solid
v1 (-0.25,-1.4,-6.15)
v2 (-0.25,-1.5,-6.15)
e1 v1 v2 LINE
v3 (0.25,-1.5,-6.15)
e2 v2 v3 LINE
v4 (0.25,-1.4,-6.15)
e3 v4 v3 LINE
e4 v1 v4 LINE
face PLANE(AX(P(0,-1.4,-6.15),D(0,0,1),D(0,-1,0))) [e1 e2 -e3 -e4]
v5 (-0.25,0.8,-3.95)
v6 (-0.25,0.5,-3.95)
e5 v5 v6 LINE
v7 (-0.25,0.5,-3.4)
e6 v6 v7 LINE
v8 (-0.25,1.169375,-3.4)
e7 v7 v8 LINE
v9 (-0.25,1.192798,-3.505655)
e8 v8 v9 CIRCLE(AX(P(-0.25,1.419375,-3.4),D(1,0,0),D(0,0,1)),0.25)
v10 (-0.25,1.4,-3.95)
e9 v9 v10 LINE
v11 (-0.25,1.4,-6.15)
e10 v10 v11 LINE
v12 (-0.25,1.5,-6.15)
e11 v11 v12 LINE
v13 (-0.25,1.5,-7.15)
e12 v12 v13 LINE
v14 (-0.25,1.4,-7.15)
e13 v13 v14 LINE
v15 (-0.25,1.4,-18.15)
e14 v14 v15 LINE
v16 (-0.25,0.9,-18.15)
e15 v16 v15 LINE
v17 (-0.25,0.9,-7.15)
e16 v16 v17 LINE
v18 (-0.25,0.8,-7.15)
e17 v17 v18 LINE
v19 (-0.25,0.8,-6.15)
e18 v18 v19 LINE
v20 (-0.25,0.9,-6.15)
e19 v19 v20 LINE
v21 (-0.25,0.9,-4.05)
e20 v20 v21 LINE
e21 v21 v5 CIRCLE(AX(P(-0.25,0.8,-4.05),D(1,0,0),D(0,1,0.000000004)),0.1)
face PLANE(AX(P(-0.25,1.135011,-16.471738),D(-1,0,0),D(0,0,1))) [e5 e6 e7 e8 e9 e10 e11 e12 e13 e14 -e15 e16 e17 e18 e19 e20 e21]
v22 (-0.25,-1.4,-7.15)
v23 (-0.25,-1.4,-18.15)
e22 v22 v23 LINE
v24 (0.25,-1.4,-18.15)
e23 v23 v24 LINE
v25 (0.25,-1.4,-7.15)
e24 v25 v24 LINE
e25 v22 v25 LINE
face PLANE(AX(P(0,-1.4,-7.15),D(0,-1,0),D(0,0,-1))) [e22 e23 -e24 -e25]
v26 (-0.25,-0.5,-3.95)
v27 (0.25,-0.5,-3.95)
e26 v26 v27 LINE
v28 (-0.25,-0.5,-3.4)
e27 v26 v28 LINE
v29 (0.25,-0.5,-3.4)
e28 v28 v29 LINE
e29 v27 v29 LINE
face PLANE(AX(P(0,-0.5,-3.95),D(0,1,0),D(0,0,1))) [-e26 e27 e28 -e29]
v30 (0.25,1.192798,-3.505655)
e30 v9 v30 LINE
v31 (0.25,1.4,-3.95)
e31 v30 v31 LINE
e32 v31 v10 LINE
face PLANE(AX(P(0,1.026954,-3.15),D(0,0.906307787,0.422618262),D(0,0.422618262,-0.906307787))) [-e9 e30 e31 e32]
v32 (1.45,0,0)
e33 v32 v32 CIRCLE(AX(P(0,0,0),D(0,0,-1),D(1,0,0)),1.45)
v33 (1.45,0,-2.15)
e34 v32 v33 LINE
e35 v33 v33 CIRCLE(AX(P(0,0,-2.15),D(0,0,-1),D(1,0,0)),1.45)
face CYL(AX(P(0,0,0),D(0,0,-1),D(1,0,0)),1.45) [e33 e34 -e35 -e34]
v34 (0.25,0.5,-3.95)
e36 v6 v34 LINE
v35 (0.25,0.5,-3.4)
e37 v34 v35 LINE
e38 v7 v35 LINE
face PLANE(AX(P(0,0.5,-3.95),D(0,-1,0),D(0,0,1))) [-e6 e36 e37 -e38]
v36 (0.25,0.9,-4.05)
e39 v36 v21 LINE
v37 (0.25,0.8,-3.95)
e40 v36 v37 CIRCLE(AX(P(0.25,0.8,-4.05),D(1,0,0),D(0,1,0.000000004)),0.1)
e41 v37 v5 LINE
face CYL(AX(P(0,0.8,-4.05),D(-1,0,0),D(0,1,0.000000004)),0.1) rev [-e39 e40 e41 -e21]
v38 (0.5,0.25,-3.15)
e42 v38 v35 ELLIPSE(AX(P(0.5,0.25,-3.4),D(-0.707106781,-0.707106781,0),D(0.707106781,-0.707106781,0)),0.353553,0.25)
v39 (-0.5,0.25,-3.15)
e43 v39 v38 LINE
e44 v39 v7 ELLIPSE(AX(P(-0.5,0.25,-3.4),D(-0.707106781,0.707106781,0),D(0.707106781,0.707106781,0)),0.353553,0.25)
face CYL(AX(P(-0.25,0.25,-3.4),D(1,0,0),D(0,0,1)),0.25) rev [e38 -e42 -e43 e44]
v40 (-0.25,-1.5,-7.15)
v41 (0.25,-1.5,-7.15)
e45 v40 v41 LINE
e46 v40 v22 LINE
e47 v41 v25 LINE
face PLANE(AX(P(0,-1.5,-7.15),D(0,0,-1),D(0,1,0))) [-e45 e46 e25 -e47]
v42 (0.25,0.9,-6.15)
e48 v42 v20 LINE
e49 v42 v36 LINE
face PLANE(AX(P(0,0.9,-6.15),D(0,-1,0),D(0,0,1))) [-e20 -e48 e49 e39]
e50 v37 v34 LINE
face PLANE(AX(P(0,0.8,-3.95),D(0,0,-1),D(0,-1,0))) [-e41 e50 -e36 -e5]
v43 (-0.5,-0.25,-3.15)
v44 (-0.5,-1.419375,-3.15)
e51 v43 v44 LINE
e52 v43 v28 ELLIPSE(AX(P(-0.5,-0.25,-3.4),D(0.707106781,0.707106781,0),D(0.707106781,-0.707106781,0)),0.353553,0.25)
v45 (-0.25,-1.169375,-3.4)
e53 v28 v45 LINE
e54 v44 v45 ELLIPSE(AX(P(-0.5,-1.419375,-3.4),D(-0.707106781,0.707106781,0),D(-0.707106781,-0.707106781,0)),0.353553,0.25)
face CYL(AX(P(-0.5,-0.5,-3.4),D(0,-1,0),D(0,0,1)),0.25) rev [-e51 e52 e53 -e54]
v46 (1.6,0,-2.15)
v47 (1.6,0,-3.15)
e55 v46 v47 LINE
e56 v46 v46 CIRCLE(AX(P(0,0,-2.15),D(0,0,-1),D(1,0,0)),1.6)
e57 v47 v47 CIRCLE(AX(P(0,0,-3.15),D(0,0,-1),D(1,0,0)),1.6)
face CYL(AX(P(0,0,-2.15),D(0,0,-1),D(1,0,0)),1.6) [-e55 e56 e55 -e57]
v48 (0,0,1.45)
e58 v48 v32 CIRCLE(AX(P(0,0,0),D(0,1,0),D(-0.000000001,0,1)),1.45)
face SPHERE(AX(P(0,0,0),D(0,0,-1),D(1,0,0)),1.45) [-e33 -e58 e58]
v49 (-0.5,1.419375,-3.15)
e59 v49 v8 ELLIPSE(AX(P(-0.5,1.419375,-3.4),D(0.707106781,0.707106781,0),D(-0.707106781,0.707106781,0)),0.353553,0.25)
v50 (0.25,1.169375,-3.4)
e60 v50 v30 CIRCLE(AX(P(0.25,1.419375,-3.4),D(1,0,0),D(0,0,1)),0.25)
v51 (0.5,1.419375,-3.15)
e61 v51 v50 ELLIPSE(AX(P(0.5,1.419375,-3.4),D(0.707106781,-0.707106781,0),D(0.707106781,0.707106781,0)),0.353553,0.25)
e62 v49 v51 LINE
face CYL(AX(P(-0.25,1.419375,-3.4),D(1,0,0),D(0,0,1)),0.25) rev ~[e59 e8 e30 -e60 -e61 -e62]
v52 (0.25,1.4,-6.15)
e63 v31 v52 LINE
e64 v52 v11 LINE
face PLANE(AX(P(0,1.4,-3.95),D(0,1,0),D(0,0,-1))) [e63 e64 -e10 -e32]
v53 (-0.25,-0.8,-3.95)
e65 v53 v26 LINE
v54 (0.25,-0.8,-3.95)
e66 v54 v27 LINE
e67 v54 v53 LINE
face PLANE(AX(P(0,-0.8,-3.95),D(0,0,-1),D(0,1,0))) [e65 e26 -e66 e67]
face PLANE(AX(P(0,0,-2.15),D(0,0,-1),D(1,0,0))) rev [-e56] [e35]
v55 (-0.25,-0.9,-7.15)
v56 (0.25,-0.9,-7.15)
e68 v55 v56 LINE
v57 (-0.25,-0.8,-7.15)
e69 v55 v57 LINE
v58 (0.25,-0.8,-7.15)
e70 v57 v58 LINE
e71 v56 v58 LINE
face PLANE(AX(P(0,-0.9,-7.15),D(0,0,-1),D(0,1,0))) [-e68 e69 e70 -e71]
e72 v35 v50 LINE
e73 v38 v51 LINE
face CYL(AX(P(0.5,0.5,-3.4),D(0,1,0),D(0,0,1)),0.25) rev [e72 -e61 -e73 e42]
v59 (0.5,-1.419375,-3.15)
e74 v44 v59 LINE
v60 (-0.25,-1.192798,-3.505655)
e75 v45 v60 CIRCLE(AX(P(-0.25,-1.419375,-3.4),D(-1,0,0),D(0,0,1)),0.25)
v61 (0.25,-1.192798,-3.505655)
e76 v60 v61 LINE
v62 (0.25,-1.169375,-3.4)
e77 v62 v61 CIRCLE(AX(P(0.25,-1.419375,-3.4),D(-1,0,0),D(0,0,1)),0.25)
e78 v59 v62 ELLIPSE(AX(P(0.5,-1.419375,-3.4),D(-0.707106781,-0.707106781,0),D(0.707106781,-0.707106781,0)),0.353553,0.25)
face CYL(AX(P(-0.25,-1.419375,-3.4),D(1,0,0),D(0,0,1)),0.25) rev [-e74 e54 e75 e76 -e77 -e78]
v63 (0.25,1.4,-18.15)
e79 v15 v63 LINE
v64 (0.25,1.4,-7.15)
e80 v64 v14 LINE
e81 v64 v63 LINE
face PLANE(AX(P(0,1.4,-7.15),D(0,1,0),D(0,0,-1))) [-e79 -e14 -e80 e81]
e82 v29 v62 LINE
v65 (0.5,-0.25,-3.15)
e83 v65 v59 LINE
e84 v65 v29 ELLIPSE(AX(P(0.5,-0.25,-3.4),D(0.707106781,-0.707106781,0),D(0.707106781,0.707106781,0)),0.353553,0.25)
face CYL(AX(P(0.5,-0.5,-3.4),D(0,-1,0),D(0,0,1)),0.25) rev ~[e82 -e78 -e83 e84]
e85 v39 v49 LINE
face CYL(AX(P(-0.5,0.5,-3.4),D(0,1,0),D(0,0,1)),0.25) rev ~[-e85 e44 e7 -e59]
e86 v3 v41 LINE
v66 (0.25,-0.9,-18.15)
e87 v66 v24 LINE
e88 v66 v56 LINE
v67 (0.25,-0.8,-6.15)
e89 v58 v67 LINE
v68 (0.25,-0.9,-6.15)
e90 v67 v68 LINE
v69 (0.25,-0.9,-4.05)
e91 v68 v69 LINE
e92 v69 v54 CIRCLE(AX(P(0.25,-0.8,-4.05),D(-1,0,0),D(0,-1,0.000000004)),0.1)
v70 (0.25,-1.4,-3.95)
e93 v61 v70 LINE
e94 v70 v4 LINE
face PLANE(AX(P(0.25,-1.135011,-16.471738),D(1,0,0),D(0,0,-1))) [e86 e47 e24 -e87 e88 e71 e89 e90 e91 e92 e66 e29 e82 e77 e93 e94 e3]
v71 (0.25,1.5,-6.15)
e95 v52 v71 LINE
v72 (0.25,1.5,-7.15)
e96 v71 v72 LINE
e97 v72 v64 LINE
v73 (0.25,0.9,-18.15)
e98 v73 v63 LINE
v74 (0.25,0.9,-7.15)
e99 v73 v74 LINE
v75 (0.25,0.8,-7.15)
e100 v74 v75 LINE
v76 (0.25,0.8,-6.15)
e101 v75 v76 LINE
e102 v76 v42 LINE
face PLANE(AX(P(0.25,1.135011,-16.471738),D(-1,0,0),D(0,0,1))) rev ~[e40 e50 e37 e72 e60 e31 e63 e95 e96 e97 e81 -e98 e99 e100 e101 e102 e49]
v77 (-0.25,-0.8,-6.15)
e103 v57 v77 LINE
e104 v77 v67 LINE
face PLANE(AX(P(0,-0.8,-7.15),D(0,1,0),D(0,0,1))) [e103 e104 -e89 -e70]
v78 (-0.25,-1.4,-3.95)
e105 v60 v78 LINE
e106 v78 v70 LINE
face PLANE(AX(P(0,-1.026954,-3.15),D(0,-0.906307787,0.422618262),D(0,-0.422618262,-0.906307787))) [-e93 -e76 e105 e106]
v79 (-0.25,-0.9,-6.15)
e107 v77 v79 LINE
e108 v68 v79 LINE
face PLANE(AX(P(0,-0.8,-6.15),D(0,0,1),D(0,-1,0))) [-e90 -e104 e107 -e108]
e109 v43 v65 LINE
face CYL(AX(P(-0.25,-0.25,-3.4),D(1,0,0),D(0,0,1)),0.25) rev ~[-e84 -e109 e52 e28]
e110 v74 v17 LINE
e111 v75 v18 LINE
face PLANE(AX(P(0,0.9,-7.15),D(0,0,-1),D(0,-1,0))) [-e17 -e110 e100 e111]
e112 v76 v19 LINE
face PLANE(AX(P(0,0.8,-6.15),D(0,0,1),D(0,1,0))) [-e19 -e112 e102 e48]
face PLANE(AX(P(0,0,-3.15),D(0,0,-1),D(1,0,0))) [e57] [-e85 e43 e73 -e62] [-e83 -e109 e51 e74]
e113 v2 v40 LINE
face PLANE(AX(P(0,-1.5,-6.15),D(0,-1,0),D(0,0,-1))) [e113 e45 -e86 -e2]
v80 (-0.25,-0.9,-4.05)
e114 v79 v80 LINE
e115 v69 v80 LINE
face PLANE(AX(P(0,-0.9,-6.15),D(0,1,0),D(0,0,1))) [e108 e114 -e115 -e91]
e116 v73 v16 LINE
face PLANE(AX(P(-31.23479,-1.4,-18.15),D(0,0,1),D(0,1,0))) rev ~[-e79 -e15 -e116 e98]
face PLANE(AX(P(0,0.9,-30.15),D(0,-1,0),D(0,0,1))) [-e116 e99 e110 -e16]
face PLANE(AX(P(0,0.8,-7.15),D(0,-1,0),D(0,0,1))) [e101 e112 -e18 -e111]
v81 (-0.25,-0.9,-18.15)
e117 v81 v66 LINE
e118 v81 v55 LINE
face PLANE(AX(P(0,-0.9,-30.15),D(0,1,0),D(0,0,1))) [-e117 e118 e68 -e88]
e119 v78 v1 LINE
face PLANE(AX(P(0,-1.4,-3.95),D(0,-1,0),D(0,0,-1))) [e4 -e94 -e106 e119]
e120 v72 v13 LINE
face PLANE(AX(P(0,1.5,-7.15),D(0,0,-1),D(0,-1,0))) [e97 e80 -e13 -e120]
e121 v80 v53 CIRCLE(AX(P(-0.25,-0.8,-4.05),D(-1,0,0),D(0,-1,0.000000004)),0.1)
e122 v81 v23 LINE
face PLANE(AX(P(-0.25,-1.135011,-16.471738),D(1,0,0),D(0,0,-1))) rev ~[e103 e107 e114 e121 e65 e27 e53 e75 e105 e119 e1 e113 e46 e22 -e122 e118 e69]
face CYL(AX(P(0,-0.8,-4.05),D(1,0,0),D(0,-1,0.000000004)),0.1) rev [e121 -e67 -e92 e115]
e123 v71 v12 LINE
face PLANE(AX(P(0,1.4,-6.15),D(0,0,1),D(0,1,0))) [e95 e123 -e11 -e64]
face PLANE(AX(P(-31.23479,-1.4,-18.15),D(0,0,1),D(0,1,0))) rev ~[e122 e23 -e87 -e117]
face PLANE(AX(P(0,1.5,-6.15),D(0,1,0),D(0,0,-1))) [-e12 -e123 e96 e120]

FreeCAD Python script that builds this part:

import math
import FreeCAD as App
import Part
import Sketcher

V = App.Vector
Q = App.Units.Quantity


def edges_at(feature, points):
    """Names of the edges that pass closest to the given points."""
    edges = feature.Shape.Edges
    near = lambda p: min(range(len(edges)), key=lambda i: edges[i].distToShape(Part.Vertex(*p))[0])
    return sorted({f"Edge{near(p) + 1}" for p in points})


def add_polygon(sketch, points):
    """Adds a closed chain of lines whose ends are joined by coincident constraints."""
    first, n = sketch.GeometryCount, len(points)
    for a, b in zip(points, points[1:] + points[:1]):
        sketch.addGeometry(Part.LineSegment(App.Vector(*a, 0), App.Vector(*b, 0)), False)
    for i in range(n):
        sketch.addConstraint(Sketcher.Constraint("Coincident", first + i, 2, first + (i + 1) % n, 1))

doc = App.newDocument("Part")
body = doc.addObject("PartDesign::Body", "Body")

# Sketch on YZ plane
sketch1 = body.newObject("Sketcher::SketchObject", "Sketch")
sketch1.AttachmentSupport = (doc.getObject("YZ_Plane"), [""])
sketch1.MapMode = "FlatFace"
sketch1.addGeometry(Part.LineSegment(V(1.45, -2.15, 0), V(1.45, 0, 0)), False)
sketch1.addGeometry(Part.ArcOfCircle(Part.Circle(V(0, 0, 0), V(0, 0, 1), 1.45), math.radians(0), math.radians(90)), False)
sketch1.addGeometry(Part.LineSegment(V(0, 1.45, 0), V(0, -3.15, 0)), False)
sketch1.addGeometry(Part.LineSegment(V(0, -3.15, 0), V(1.6, -3.15, 0)), False)
sketch1.addGeometry(Part.LineSegment(V(1.6, -3.15, 0), V(1.6, -2.15, 0)), False)
sketch1.addGeometry(Part.LineSegment(V(1.6, -2.15, 0), V(1.45, -2.15, 0)), False)
sketch1.addConstraint(Sketcher.Constraint("Tangent", 0, 2, 1, 1))
sketch1.addConstraint(Sketcher.Constraint("Coincident", 1, 2, 2, 1))
sketch1.addConstraint(Sketcher.Constraint("Coincident", 2, 2, 3, 1))
sketch1.addConstraint(Sketcher.Constraint("Coincident", 3, 2, 4, 1))
sketch1.addConstraint(Sketcher.Constraint("Coincident", 4, 2, 5, 1))
sketch1.addConstraint(Sketcher.Constraint("Coincident", 5, 2, 0, 1))
sketch1.addConstraint(Sketcher.Constraint("Vertical", 0))
sketch1.addConstraint(Sketcher.Constraint("Vertical", 2))
sketch1.addConstraint(Sketcher.Constraint("Horizontal", 3))
sketch1.addConstraint(Sketcher.Constraint("Vertical", 4))
sketch1.addConstraint(Sketcher.Constraint("Horizontal", 5))
sketch1.addConstraint(Sketcher.Constraint("Coincident", 1, 3, -1, 1))
sketch1.addConstraint(Sketcher.Constraint("PointOnObject", 1, 2, -2))
sketch1.addConstraint(Sketcher.Constraint("DistanceY", 4, 1, 4, 2, 1.0))
sketch1.addConstraint(Sketcher.Constraint("Radius", 1, 1.45))
sketch1.addConstraint(Sketcher.Constraint("DistanceX", 3, 1, 3, 2, 1.6))
sketch1.addConstraint(Sketcher.Constraint("DistanceY", 2, 2, 2, 1, 4.6))
revolution = body.newObject("PartDesign::Revolution", "Revolution")
revolution.Profile = sketch1
revolution.ReferenceAxis = (sketch1, ["V_Axis"])
revolution.Angle = 360

# Sketch on YZ plane
sketch2 = body.newObject("Sketcher::SketchObject", "Sketch001")
sketch2.AttachmentSupport = (doc.getObject("YZ_Plane"), [""])
sketch2.MapMode = "FlatFace"
sketch2.addGeometry(Part.LineSegment(V(1.4, -3.95, 0), V(1.03, -3.15, 0)), False)
sketch2.addGeometry(Part.LineSegment(V(1.03, -3.15, 0), V(0.5, -3.15, 0)), False)
sketch2.addGeometry(Part.LineSegment(V(0.5, -3.15, 0), V(0.5, -3.95, 0)), False)
sketch2.addGeometry(Part.LineSegment(V(0.5, -3.95, 0), V(0.8, -3.95, 0)), False)
sketch2.addGeometry(Part.ArcOfCircle(Part.Circle(V(0.8, -4.05, 0), V(0, 0, 1), 0.1), math.radians(0), math.radians(90)), False)
sketch2.addGeometry(Part.LineSegment(V(0.9, -4.05, 0), V(0.9, -6.15, 0)), False)
sketch2.addGeometry(Part.LineSegment(V(0.9, -6.15, 0), V(0.8, -6.15, 0)), False)
sketch2.addGeometry(Part.LineSegment(V(0.8, -6.15, 0), V(0.8, -7.15, 0)), False)
sketch2.addGeometry(Part.LineSegment(V(0.8, -7.15, 0), V(0.9, -7.15, 0)), False)
sketch2.addGeometry(Part.LineSegment(V(0.9, -7.15, 0), V(0.9, -30.15, 0)), False)
sketch2.addGeometry(Part.LineSegment(V(0.9, -30.15, 0), V(1.4, -30.15, 0)), False)
sketch2.addGeometry(Part.LineSegment(V(1.4, -30.15, 0), V(1.4, -7.15, 0)), False)
sketch2.addGeometry(Part.LineSegment(V(1.4, -7.15, 0), V(1.5, -7.15, 0)), False)
sketch2.addGeometry(Part.LineSegment(V(1.5, -7.15, 0), V(1.5, -6.15, 0)), False)
sketch2.addGeometry(Part.LineSegment(V(1.5, -6.15, 0), V(1.4, -6.15, 0)), False)
sketch2.addGeometry(Part.LineSegment(V(1.4, -6.15, 0), V(1.4, -3.95, 0)), False)
sketch2.addGeometry(Part.LineSegment(V(-0.8, -3.95, 0), V(-0.5, -3.95, 0)), False)
sketch2.addGeometry(Part.LineSegment(V(-0.5, -3.95, 0), V(-0.5, -3.15, 0)), False)
sketch2.addGeometry(Part.LineSegment(V(-0.5, -3.15, 0), V(-1.03, -3.15, 0)), False)
sketch2.addGeometry(Part.LineSegment(V(-1.03, -3.15, 0), V(-1.4, -3.95, 0)), False)
sketch2.addGeometry(Part.LineSegment(V(-1.4, -3.95, 0), V(-1.4, -6.15, 0)), False)
sketch2.addGeometry(Part.LineSegment(V(-1.4, -6.15, 0), V(-1.5, -6.15, 0)), False)
sketch2.addGeometry(Part.LineSegment(V(-1.5, -6.15, 0), V(-1.5, -7.15, 0)), False)
sketch2.addGeometry(Part.LineSegment(V(-1.5, -7.15, 0), V(-1.4, -7.15, 0)), False)
sketch2.addGeometry(Part.LineSegment(V(-1.4, -7.15, 0), V(-1.4, -30.15, 0)), False)
sketch2.addGeometry(Part.LineSegment(V(-1.4, -30.15, 0), V(-0.9, -30.15, 0)), False)
sketch2.addGeometry(Part.LineSegment(V(-0.9, -30.15, 0), V(-0.9, -7.15, 0)), False)
sketch2.addGeometry(Part.LineSegment(V(-0.9, -7.15, 0), V(-0.8, -7.15, 0)), False)
sketch2.addGeometry(Part.LineSegment(V(-0.8, -7.15, 0), V(-0.8, -6.15, 0)), False)
sketch2.addGeometry(Part.LineSegment(V(-0.8, -6.15, 0), V(-0.9, -6.15, 0)), False)
sketch2.addGeometry(Part.LineSegment(V(-0.9, -6.15, 0), V(-0.9, -4.05, 0)), False)
sketch2.addGeometry(Part.ArcOfCircle(Part.Circle(V(-0.8, -4.05, 0), V(0, 0, 1), 0.1), math.radians(90), math.radians(180)), False)
sketch2.addConstraint(Sketcher.Constraint("Coincident", 0, 2, 1, 1))
sketch2.addConstraint(Sketcher.Constraint("Coincident", 1, 2, 2, 1))
sketch2.addConstraint(Sketcher.Constraint("Coincident", 2, 2, 3, 1))
sketch2.addConstraint(Sketcher.Constraint("Tangent", 3, 2, 4, 2))
sketch2.addConstraint(Sketcher.Constraint("Tangent", 4, 1, 5, 1))
sketch2.addConstraint(Sketcher.Constraint("Coincident", 5, 2, 6, 1))
sketch2.addConstraint(Sketcher.Constraint("Coincident", 6, 2, 7, 1))
sketch2.addConstraint(Sketcher.Constraint("Coincident", 7, 2, 8, 1))
sketch2.addConstraint(Sketcher.Constraint("Coincident", 8, 2, 9, 1))
sketch2.addConstraint(Sketcher.Constraint("Coincident", 9, 2, 10, 1))
sketch2.addConstraint(Sketcher.Constraint("Coincident", 10, 2, 11, 1))
sketch2.addConstraint(Sketcher.Constraint("Coincident", 11, 2, 12, 1))
sketch2.addConstraint(Sketcher.Constraint("Coincident", 12, 2, 13, 1))
sketch2.addConstraint(Sketcher.Constraint("Coincident", 13, 2, 14, 1))
sketch2.addConstraint(Sketcher.Constraint("Coincident", 14, 2, 15, 1))
sketch2.addConstraint(Sketcher.Constraint("Coincident", 15, 2, 0, 1))
sketch2.addConstraint(Sketcher.Constraint("Coincident", 16, 2, 17, 1))
sketch2.addConstraint(Sketcher.Constraint("Coincident", 17, 2, 18, 1))
sketch2.addConstraint(Sketcher.Constraint("Coincident", 18, 2, 19, 1))
sketch2.addConstraint(Sketcher.Constraint("Coincident", 19, 2, 20, 1))
sketch2.addConstraint(Sketcher.Constraint("Coincident", 20, 2, 21, 1))
sketch2.addConstraint(Sketcher.Constraint("Coincident", 21, 2, 22, 1))
sketch2.addConstraint(Sketcher.Constraint("Coincident", 22, 2, 23, 1))
sketch2.addConstraint(Sketcher.Constraint("Coincident", 23, 2, 24, 1))
sketch2.addConstraint(Sketcher.Constraint("Coincident", 24, 2, 25, 1))
sketch2.addConstraint(Sketcher.Constraint("Coincident", 25, 2, 26, 1))
sketch2.addConstraint(Sketcher.Constraint("Coincident", 26, 2, 27, 1))
sketch2.addConstraint(Sketcher.Constraint("Coincident", 27, 2, 28, 1))
sketch2.addConstraint(Sketcher.Constraint("Coincident", 28, 2, 29, 1))
sketch2.addConstraint(Sketcher.Constraint("Coincident", 29, 2, 30, 1))
sketch2.addConstraint(Sketcher.Constraint("Tangent", 30, 2, 31, 2))
sketch2.addConstraint(Sketcher.Constraint("Tangent", 31, 1, 16, 1))
sketch2.addConstraint(Sketcher.Constraint("Horizontal", 1))
sketch2.addConstraint(Sketcher.Constraint("Vertical", 2))
sketch2.addConstraint(Sketcher.Constraint("Horizontal", 3))
sketch2.addConstraint(Sketcher.Constraint("Vertical", 5))
sketch2.addConstraint(Sketcher.Constraint("Horizontal", 6))
sketch2.addConstraint(Sketcher.Constraint("Vertical", 7))
sketch2.addConstraint(Sketcher.Constraint("Horizontal", 8))
sketch2.addConstraint(Sketcher.Constraint("Vertical", 9))
sketch2.addConstraint(Sketcher.Constraint("Horizontal", 10))
sketch2.addConstraint(Sketcher.Constraint("Vertical", 11))
sketch2.addConstraint(Sketcher.Constraint("Horizontal", 12))
sketch2.addConstraint(Sketcher.Constraint("Vertical", 13))
sketch2.addConstraint(Sketcher.Constraint("Horizontal", 14))
sketch2.addConstraint(Sketcher.Constraint("Vertical", 15))
sketch2.addConstraint(Sketcher.Constraint("Horizontal", 16))
sketch2.addConstraint(Sketcher.Constraint("Vertical", 17))
sketch2.addConstraint(Sketcher.Constraint("Horizontal", 18))
sketch2.addConstraint(Sketcher.Constraint("Vertical", 20))
sketch2.addConstraint(Sketcher.Constraint("Horizontal", 21))
sketch2.addConstraint(Sketcher.Constraint("Vertical", 22))
sketch2.addConstraint(Sketcher.Constraint("Horizontal", 23))
sketch2.addConstraint(Sketcher.Constraint("Vertical", 24))
sketch2.addConstraint(Sketcher.Constraint("Horizontal", 25))
sketch2.addConstraint(Sketcher.Constraint("Vertical", 26))
sketch2.addConstraint(Sketcher.Constraint("Horizontal", 27))
sketch2.addConstraint(Sketcher.Constraint("Vertical", 28))
sketch2.addConstraint(Sketcher.Constraint("Horizontal", 29))
sketch2.addConstraint(Sketcher.Constraint("Vertical", 30))
sketch2.addConstraint(Sketcher.Constraint("Equal", 4, 31))
sketch2.addConstraint(Sketcher.Constraint("Symmetric", 4, 3, 31, 3, -2))
sketch2.addConstraint(Sketcher.Constraint("Symmetric", 1, 2, 17, 2, -2))
sketch2.addConstraint(Sketcher.Constraint("Symmetric", 15, 2, 19, 2, -2))
sketch2.addConstraint(Sketcher.Constraint("Symmetric", 13, 2, 21, 2, -2))
sketch2.addConstraint(Sketcher.Constraint("Symmetric", 11, 2, 23, 2, -2))
sketch2.addConstraint(Sketcher.Constraint("Symmetric", 9, 2, 25, 2, -2))
sketch2.addConstraint(Sketcher.Constraint("Symmetric", 7, 2, 27, 2, -2))
sketch2.addConstraint(Sketcher.Constraint("Horizontal", 8, 2, 11, 2))
sketch2.addConstraint(Sketcher.Constraint("Horizontal", 6, 2, 13, 2))
sketch2.addConstraint(Sketcher.Constraint("Horizontal", 3, 2, 15, 2))
sketch2.addConstraint(Sketcher.Constraint("Horizontal", 21, 2, 28, 2))
sketch2.addConstraint(Sketcher.Constraint("Vertical", 3, 2, 6, 2))
sketch2.addConstraint(Sketcher.Constraint("Vertical", 5, 2, 8, 2))
sketch2.addConstraint(Sketcher.Constraint("Vertical", 11, 2, 14, 2))
sketch2.addConstraint(Sketcher.Constraint("Equal", 8, 12))
sketch2.addConstraint(Sketcher.Constraint("Equal", 1, 18))
sketch2.addConstraint(Sketcher.Constraint("Radius", 4, 0.1))
sketch2.addConstraint(Sketcher.Constraint("DistanceY", 7, 2, 7, 1, 1.0))
sketch2.addConstraint(Sketcher.Constraint("DistanceY", 9, 2, 9, 1, 23.0))
sketch2.addConstraint(Sketcher.Constraint("Angle", 0, Q("115 deg")))
sketch2.addConstraint(Sketcher.Constraint("DistanceX", 3, 1, 3, 2, 0.3))
sketch2.addConstraint(Sketcher.Constraint("DistanceX", 10, 1, 10, 2, 0.5))
sketch2.addConstraint(Sketcher.Constraint("DistanceY", 2, 2, 2, 1, 0.8))
sketch2.addConstraint(Sketcher.Constraint("DistanceY", 5, 2, 5, 1, 2.1))
sketch2.addConstraint(Sketcher.Constraint("DistanceX", 16, 2, 2, 2, 1.0))
sketch2.addConstraint(Sketcher.Constraint("DistanceY", 4, 3, -1, 1, 4.05))
pad1 = body.newObject("PartDesign::Pad", "Pad")
pad1.Profile = sketch2
pad1.Length = 0.5
pad1.Midplane = True
doc.recompute()

fillet = body.newObject("PartDesign::Fillet", "Fillet")
fillet.Base = (pad1, edges_at(pad1, [
    (-0.25, 0.763, -3.15),
    (0, 1.027, -3.15),
    (0, 0.5, -3.15),
    (0.25, 0.763, -3.15),
    (-0.25, -0.763, -3.15),
    (0, -0.5, -3.15),
    (0, -1.027, -3.15),
    (0.25, -0.763, -3.15),
]))
fillet.Radius = 0.25

# Sketch on YZ plane
sketch3 = body.newObject("Sketcher::SketchObject", "Sketch002")
sketch3.AttachmentSupport = (doc.getObject("YZ_Plane"), [""])
sketch3.MapMode = "FlatFace"
add_polygon(sketch3, [(1.4, -18.1), (-1.4, -18.1), (-1.4, -30.1), (1.4, -30.1)])  # lines 0-3
sketch3.addConstraint(Sketcher.Constraint("Horizontal", 0))
sketch3.addConstraint(Sketcher.Constraint("Vertical", 1))
sketch3.addConstraint(Sketcher.Constraint("Horizontal", 2))
sketch3.addConstraint(Sketcher.Constraint("Vertical", 3))
sketch3.addConstraint(Sketcher.Constraint("DistanceY", 1, 2, 1, 1, 12.0))
sketch3.addConstraint(Sketcher.Constraint("DistanceX", 0, 2, 0, 1, 2.8))
sketch3.addConstraint(Sketcher.Constraint("DistanceX", 0, 2, -1, 1, 1.4))
sketch3.addConstraint(Sketcher.Constraint("DistanceY", 0, 2, -1, 1, 18.15))
pocket1 = body.newObject("PartDesign::Pocket", "Pocket")
pocket1.Profile = sketch3
pocket1.Type = "ThroughAll"
pocket1.Midplane = True

doc.recompute()
